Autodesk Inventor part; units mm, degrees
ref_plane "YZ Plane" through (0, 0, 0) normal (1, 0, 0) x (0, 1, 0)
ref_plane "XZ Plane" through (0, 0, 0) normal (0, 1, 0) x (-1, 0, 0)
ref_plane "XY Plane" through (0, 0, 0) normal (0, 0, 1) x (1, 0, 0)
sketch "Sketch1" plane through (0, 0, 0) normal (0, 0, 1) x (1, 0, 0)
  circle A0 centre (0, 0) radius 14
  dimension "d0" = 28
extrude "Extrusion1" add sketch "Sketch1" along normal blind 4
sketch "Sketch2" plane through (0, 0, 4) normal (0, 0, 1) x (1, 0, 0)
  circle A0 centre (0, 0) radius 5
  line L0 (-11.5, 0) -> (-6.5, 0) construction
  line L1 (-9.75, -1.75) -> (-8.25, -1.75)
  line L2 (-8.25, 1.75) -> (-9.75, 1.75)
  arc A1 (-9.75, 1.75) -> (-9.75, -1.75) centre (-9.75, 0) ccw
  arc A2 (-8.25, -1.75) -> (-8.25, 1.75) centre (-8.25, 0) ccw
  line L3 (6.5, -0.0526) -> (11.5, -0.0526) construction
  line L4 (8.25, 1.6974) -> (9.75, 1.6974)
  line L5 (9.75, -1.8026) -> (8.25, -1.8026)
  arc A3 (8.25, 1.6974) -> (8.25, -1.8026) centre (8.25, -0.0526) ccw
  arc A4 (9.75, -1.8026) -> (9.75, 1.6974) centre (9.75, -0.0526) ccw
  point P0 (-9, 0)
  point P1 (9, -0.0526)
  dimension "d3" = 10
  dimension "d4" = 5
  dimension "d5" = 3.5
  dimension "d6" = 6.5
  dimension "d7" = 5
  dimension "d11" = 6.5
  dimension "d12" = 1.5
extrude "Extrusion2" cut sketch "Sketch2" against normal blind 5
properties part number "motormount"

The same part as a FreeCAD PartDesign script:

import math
import FreeCAD as App
import Part
import Sketcher

V = App.Vector
Q = App.Units.Quantity

doc = App.newDocument("Part")
body = doc.addObject("PartDesign::Body", "Body")

# Sketch on XY plane
sketch1 = body.newObject("Sketcher::SketchObject", "Sketch")
sketch1.AttachmentSupport = (doc.getObject("XY_Plane"), [""])
sketch1.MapMode = "FlatFace"
sketch1.addGeometry(Part.Circle(V(0, 0, 0), V(0, 0, 1), 14), False)
sketch1.addConstraint([
    Sketcher.Constraint("Coincident", 0, 3, -1, 1),
    Sketcher.Constraint("Diameter", 0, Q("28 mm")),
])
pad1 = body.newObject("PartDesign::Pad", "Pad")
pad1.Profile = sketch1
pad1.Length = 4

# Sketch on XY plane
sketch2 = body.newObject("Sketcher::SketchObject", "Sketch001")
sketch2.AttachmentSupport = (doc.getObject("XY_Plane"), [""])
sketch2.MapMode = "FlatFace"
sketch2.AttachmentOffset = App.Placement(V(0, 0, 4), App.Rotation())
sketch2.addGeometry([
    Part.Circle(V(0, 0, 0), V(0, 0, 1), 5),  # 0
    Part.ArcOfCircle(Part.Circle(V(-9.8, 0, 0), V(0, 0, 1), 1.8), math.radians(90), math.radians(270)),  # 1
    Part.LineSegment(V(-9.8, -1.8, 0), V(-8.2, -1.8, 0)),  # 2
    Part.ArcOfCircle(Part.Circle(V(-8.2, 0, 0), V(0, 0, 1), 1.8), math.radians(-90), math.radians(90)),  # 3
    Part.LineSegment(V(-8.2, 1.8, 0), V(-9.8, 1.8, 0)),  # 4
    Part.LineSegment(V(9.8, 1.7, 0), V(8.2, 1.7, 0)),  # 5
    Part.ArcOfCircle(Part.Circle(V(8.2, -0.1, 0), V(0, 0, 1), 1.8), math.radians(90), math.radians(270)),  # 6
    Part.LineSegment(V(8.2, -1.8, 0), V(9.8, -1.8, 0)),  # 7
    Part.ArcOfCircle(Part.Circle(V(9.8, -0.1, 0), V(0, 0, 1), 1.8), math.radians(-90), math.radians(90)),  # 8
], False)
sketch2.addConstraint([
    Sketcher.Constraint("Tangent", 1, 2, 2, 1),
    Sketcher.Constraint("Tangent", 2, 2, 3, 1),
    Sketcher.Constraint("Tangent", 3, 2, 4, 1),
    Sketcher.Constraint("Tangent", 4, 2, 1, 1),
    Sketcher.Constraint("Tangent", 5, 2, 6, 1),
    Sketcher.Constraint("Tangent", 6, 2, 7, 1),
    Sketcher.Constraint("Tangent", 7, 2, 8, 1),
    Sketcher.Constraint("Tangent", 8, 2, 5, 1),
    Sketcher.Constraint("Horizontal", 2),
    Sketcher.Constraint("Horizontal", 4),
    Sketcher.Constraint("Horizontal", 5),
    Sketcher.Constraint("Horizontal", 7),
    Sketcher.Constraint("Coincident", 0, 3, -1, 1),
    Sketcher.Constraint("Equal", 3, 6),
    Sketcher.Constraint("PointOnObject", 1, 3, -1),
    Sketcher.Constraint("Equal", 4, 5),
    Sketcher.Constraint("Diameter", 0, Q("10 mm")),
    Sketcher.Constraint("Radius", 1, Q("1.75 mm")),
    Sketcher.Constraint("DistanceX", 2, 1, 2, 2, Q("1.5 mm")),
    Sketcher.Constraint("DistanceX", 1, 3, 6, 3, Q("18 mm")),
    Sketcher.Constraint("DistanceX", 1, 3, -1, 1, Q("9.75 mm")),
    Sketcher.Constraint("DistanceY", 6, 3, -1, 1, Q("0.0526 mm")),
])
pocket1 = body.newObject("PartDesign::Pocket", "Pocket")
pocket1.Profile = sketch2
pocket1.Length = 5

doc.recompute()
